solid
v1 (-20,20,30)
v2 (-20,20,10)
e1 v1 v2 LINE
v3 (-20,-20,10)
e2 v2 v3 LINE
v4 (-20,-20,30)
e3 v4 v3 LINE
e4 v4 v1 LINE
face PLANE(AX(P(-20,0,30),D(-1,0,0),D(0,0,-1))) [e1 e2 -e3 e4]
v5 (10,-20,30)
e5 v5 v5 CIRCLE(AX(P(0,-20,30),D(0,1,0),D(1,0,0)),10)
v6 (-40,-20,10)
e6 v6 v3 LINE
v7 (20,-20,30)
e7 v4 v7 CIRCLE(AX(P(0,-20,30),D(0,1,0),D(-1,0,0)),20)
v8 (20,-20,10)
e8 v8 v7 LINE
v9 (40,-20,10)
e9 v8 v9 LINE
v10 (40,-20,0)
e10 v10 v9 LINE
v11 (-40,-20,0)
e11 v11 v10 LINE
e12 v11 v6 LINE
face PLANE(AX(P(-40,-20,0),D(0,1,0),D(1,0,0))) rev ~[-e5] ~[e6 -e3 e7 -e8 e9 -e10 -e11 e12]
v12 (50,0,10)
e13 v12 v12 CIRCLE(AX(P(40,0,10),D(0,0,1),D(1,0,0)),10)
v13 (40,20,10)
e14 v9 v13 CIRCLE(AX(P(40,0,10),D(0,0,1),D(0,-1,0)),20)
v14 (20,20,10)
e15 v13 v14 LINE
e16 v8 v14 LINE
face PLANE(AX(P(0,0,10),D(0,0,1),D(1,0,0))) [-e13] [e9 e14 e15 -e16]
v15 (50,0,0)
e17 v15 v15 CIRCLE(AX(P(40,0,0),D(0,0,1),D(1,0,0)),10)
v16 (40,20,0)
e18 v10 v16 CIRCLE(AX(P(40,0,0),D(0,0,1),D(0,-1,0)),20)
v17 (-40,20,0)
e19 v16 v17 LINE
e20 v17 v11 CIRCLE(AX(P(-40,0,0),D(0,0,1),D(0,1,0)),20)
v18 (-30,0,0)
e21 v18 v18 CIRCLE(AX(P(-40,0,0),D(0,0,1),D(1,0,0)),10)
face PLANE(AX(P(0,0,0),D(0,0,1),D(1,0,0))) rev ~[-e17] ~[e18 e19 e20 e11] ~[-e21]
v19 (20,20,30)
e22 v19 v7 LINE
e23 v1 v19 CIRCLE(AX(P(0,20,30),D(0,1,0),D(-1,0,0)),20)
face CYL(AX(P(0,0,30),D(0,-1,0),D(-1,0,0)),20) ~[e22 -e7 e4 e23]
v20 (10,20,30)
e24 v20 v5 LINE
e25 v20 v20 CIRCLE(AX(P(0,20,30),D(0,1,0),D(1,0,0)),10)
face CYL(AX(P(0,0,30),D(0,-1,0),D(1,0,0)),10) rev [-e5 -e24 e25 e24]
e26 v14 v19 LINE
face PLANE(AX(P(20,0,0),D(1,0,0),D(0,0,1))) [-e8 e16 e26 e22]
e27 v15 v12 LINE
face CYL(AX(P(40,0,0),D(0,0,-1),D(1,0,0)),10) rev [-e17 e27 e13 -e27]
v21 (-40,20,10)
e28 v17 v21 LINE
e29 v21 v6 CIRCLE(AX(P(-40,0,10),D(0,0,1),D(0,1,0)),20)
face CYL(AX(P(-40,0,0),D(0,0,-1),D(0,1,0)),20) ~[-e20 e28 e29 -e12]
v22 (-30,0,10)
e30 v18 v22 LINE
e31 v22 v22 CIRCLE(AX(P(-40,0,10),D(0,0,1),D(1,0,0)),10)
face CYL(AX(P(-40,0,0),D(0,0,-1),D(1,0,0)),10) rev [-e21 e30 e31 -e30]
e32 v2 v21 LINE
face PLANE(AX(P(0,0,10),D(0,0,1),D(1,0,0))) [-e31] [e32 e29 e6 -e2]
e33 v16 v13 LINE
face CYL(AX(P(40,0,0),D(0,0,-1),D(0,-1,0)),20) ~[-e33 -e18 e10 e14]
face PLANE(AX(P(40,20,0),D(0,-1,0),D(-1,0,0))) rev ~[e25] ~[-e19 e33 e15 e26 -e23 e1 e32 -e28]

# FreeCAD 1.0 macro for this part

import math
import FreeCAD as App
import Part
import Sketcher
from FreeCAD import Vector

doc = App.newDocument("Part")
body = doc.addObject("PartDesign::Body", "Body")

# Sketch on XY plane
sketch1 = body.newObject("Sketcher::SketchObject", "Sketch")
sketch1.AttachmentSupport = (doc.getObject("XY_Plane"), [""])
sketch1.MapMode = "FlatFace"
sketch1.addGeometry([
    Part.ArcOfCircle(Part.Circle(Vector(40, 0, 0), Vector(0, 0, 1), 20), math.radians(-90), math.radians(90)),  # 0
    Part.LineSegment(Vector(40, 20, 0), Vector(-40, 20, 0)),  # 1
    Part.ArcOfCircle(Part.Circle(Vector(-40, 0, 0), Vector(0, 0, 1), 20), math.radians(90), math.radians(270)),  # 2
    Part.LineSegment(Vector(-40, -20, 0), Vector(40, -20, 0)),  # 3
    Part.Circle(Vector(-40, 0, 0), Vector(0, 0, 1), 10),  # 4
    Part.Circle(Vector(40, 0, 0), Vector(0, 0, 1), 10),  # 5
], False)
sketch1.addConstraint([
    Sketcher.Constraint("Tangent", 0, 2, 1, 1),
    Sketcher.Constraint("Tangent", 1, 2, 2, 1),
    Sketcher.Constraint("Tangent", 2, 2, 3, 1),
    Sketcher.Constraint("Tangent", 3, 2, 0, 1),
    Sketcher.Constraint("Horizontal", 1),
    Sketcher.Constraint("Horizontal", 3),
    Sketcher.Constraint("Coincident", 4, 3, 2, 3),
    Sketcher.Constraint("Coincident", 5, 3, 0, 3),
    Sketcher.Constraint("Equal", 4, 5),
    Sketcher.Constraint("Symmetric", 0, 3, 2, 3, -1, 1),
    Sketcher.Constraint("Radius", 0, 20.0),
    Sketcher.Constraint("DistanceX", 1, 2, 1, 1, 80.0),
    Sketcher.Constraint("Diameter", 4, 20.0),
])
pad1 = body.newObject("PartDesign::Pad", "Pad")
pad1.Profile = sketch1
pad1.Length = 10

# Sketch on XZ plane
sketch2 = body.newObject("Sketcher::SketchObject", "Sketch001")
sketch2.AttachmentSupport = (doc.getObject("XZ_Plane"), [""])
sketch2.MapMode = "FlatFace"
sketch2.addGeometry([
    Part.LineSegment(Vector(20, 0, 0), Vector(-20, 0, 0)),  # 0
    Part.LineSegment(Vector(-20, 0, 0), Vector(-20, 30, 0)),  # 1
    Part.ArcOfCircle(Part.Circle(Vector(0, 30, 0), Vector(0, 0, 1), 20), math.radians(0), math.radians(180)),  # 2
    Part.LineSegment(Vector(20, 30, 0), Vector(20, 0, 0)),  # 3
    Part.Circle(Vector(0, 30, 0), Vector(0, 0, 1), 10),  # 4
], False)
sketch2.addConstraint([
    Sketcher.Constraint("Coincident", 0, 2, 1, 1),
    Sketcher.Constraint("Tangent", 1, 2, 2, 2),
    Sketcher.Constraint("Tangent", 2, 1, 3, 1),
    Sketcher.Constraint("Coincident", 3, 2, 0, 1),
    Sketcher.Constraint("Horizontal", 0),
    Sketcher.Constraint("Vertical", 1),
    Sketcher.Constraint("Vertical", 3),
    Sketcher.Constraint("Coincident", 4, 3, 2, 3),
    Sketcher.Constraint("Symmetric", 0, 2, 3, 2, -1, 1),
    Sketcher.Constraint("Diameter", 4, 20.0),
    Sketcher.Constraint("Radius", 2, 20.0),
    Sketcher.Constraint("DistanceY", 1, 1, 1, 2, 30.0),
])
pad2 = body.newObject("PartDesign::Pad", "Pad001")
pad2.Profile = sketch2
pad2.Length = 40
pad2.Midplane = True

doc.recompute()
